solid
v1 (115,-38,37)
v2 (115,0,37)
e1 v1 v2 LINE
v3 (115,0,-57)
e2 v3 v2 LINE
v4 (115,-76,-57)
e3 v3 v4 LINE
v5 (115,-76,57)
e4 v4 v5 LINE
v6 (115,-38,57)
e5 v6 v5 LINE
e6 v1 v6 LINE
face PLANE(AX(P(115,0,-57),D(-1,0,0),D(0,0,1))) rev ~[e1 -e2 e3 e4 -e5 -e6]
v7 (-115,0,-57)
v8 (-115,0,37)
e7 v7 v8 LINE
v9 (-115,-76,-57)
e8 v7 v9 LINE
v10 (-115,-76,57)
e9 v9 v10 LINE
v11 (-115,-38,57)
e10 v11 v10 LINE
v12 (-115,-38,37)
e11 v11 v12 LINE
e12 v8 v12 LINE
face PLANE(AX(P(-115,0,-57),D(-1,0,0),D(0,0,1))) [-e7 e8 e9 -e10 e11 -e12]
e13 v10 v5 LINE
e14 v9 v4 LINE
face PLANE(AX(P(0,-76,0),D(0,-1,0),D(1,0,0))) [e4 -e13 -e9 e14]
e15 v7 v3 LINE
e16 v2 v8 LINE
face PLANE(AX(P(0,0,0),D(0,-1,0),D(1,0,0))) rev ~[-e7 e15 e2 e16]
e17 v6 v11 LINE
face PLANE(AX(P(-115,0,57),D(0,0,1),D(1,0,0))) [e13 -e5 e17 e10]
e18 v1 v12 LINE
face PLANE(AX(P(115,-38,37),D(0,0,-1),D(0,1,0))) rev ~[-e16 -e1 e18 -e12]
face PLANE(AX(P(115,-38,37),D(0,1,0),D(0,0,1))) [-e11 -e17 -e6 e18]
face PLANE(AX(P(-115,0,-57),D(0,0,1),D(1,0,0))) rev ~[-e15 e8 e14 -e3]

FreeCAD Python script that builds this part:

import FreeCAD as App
import Part
import Sketcher
Q = App.Units.Quantity


def add_polygon(sketch, points):
    """Adds a closed chain of lines whose ends are joined by coincident constraints."""
    first, n = sketch.GeometryCount, len(points)
    for a, b in zip(points, points[1:] + points[:1]):
        sketch.addGeometry(Part.LineSegment(App.Vector(*a, 0), App.Vector(*b, 0)), False)
    for i in range(n):
        sketch.addConstraint(Sketcher.Constraint("Coincident", first + i, 2, first + (i + 1) % n, 1))

doc = App.newDocument("Part")
body = doc.addObject("PartDesign::Body", "Body")

sketch1 = body.newObject("Sketcher::SketchObject", "Sketch")
sketch1.AttachmentSupport = (doc.getObject("XZ_Plane"), [""])
sketch1.MapMode = "FlatFace"
add_polygon(sketch1, [(-115, 57), (-115, -57), (115, -57), (115, 57)])
sketch1.addConstraint(Sketcher.Constraint("Vertical", 0))
sketch1.addConstraint(Sketcher.Constraint("Horizontal", 1))
sketch1.addConstraint(Sketcher.Constraint("Vertical", 2))
sketch1.addConstraint(Sketcher.Constraint("Horizontal", 3))
sketch1.addConstraint(Sketcher.Constraint("Symmetric", 0, 2, 2, 2, -1, 1))
sketch1.addConstraint(Sketcher.Constraint("DistanceX", 1, 1, 1, 2, Q("230 mm")))
sketch1.addConstraint(Sketcher.Constraint("DistanceY", 0, 2, 0, 1, Q("114 mm")))
pad1 = body.newObject("PartDesign::Pad", "Pad")
pad1.Profile = sketch1
pad1.Length = 76

sketch2 = body.newObject("Sketcher::SketchObject", "Sketch001")
sketch2.AttachmentSupport = (doc.getObject("YZ_Plane"), [""])
sketch2.MapMode = "FlatFace"
sketch2.AttachmentOffset = App.Placement(App.Vector(0, 0, 115), App.Rotation())
add_polygon(sketch2, [(-38, 57), (-38, 37), (0, 37), (0, 57)])
sketch2.addConstraint(Sketcher.Constraint("Vertical", 0))
sketch2.addConstraint(Sketcher.Constraint("Horizontal", 1))
sketch2.addConstraint(Sketcher.Constraint("Vertical", 2))
sketch2.addConstraint(Sketcher.Constraint("Horizontal", 3))
sketch2.addConstraint(Sketcher.Constraint("PointOnObject", 1, 2, -2))
sketch2.addConstraint(Sketcher.Constraint("DistanceX", 1, 1, 1, 2, Q("38 mm")))
sketch2.addConstraint(Sketcher.Constraint("DistanceY", 0, 2, 0, 1, Q("20 mm")))
sketch2.addConstraint(Sketcher.Constraint("DistanceY", -1, 1, 0, 2, Q("37 mm")))
pocket1 = body.newObject("PartDesign::Pocket", "Pocket")
pocket1.Profile = sketch2
pocket1.Type = "ThroughAll"

doc.recompute()
